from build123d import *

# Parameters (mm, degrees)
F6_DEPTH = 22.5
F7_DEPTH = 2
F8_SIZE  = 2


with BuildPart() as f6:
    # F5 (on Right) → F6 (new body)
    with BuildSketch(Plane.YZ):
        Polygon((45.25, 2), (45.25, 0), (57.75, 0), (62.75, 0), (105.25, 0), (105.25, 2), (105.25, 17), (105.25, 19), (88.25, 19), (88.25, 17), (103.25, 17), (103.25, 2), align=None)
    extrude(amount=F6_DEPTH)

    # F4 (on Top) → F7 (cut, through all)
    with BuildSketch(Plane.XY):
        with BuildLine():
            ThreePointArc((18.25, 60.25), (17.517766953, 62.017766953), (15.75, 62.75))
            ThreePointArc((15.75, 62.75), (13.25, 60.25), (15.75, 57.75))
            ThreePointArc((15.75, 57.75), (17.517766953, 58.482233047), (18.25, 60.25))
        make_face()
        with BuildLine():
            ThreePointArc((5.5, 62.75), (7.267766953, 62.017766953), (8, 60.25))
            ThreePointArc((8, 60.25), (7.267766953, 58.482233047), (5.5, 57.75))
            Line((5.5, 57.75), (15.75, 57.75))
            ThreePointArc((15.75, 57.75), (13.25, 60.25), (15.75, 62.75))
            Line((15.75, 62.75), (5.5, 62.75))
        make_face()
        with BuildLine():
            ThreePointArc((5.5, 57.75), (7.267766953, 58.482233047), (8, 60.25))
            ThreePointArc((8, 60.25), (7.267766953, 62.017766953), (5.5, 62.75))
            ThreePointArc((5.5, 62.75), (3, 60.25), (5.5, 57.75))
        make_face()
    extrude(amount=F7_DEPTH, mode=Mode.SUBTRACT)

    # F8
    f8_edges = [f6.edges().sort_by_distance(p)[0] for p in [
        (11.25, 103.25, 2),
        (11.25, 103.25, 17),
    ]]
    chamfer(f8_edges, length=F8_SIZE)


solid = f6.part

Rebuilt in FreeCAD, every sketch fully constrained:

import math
import FreeCAD as App
import Part
import Sketcher
from FreeCAD import Vector


def edges_at(feature, points):
    """Names of the edges that pass closest to the given points."""
    edges = feature.Shape.Edges
    near = lambda p: min(range(len(edges)), key=lambda i: edges[i].distToShape(Part.Vertex(*p))[0])
    return sorted({f"Edge{near(p) + 1}" for p in points})

doc = App.newDocument("Part")
params = doc.addObject("Spreadsheet::Sheet", "Params")
for row, (alias, value) in enumerate([
    ("sketch1_width", "60 mm"),
    ("sketch1_width2", "17 mm"),
    ("sketch1_width3", "15 mm"),
    ("sketch1_height", "2 mm"),
    ("pad1_length", "22.5 mm"),
    ("sketch2_radius", "2.5 mm"),
    ("sketch2_width", "10.25 mm"),
    ("chamfer_size", "2 mm"),
], start=1):
    params.set(f"A{row}", alias)
    params.set(f"B{row}", "=" + value)
    params.setAlias(f"B{row}", alias)

body = doc.addObject("PartDesign::Body", "Body")

# Sketch on YZ plane
sketch1 = body.newObject("Sketcher::SketchObject", "Sketch")
sketch1.AttachmentSupport = (doc.getObject("YZ_Plane"), [""])
sketch1.MapMode = "FlatFace"
sketch1.addGeometry([
    Part.LineSegment(Vector(45.2, 2, 0), Vector(45.2, 0, 0)),  # 0
    Part.LineSegment(Vector(45.2, 0, 0), Vector(105.2, 0, 0)),  # 1
    Part.LineSegment(Vector(105.2, 0, 0), Vector(105.2, 19, 0)),  # 2
    Part.LineSegment(Vector(105.2, 19, 0), Vector(88.2, 19, 0)),  # 3
    Part.LineSegment(Vector(88.2, 19, 0), Vector(88.2, 17, 0)),  # 4
    Part.LineSegment(Vector(88.2, 17, 0), Vector(103.2, 17, 0)),  # 5
    Part.LineSegment(Vector(103.2, 17, 0), Vector(103.2, 2, 0)),  # 6
    Part.LineSegment(Vector(103.2, 2, 0), Vector(45.2, 2, 0)),  # 7
], False)
sketch1.addConstraint([
    Sketcher.Constraint("Coincident", 0, 2, 1, 1),
    Sketcher.Constraint("Coincident", 1, 2, 2, 1),
    Sketcher.Constraint("Coincident", 2, 2, 3, 1),
    Sketcher.Constraint("Coincident", 3, 2, 4, 1),
    Sketcher.Constraint("Coincident", 4, 2, 5, 1),
    Sketcher.Constraint("Coincident", 5, 2, 6, 1),
    Sketcher.Constraint("Coincident", 6, 2, 7, 1),
    Sketcher.Constraint("Coincident", 7, 2, 0, 1),
    Sketcher.Constraint("Vertical", 0),
    Sketcher.Constraint("Horizontal", 1),
    Sketcher.Constraint("Vertical", 2),
    Sketcher.Constraint("Horizontal", 3),
    Sketcher.Constraint("Vertical", 4),
    Sketcher.Constraint("Horizontal", 5),
    Sketcher.Constraint("Vertical", 6),
    Sketcher.Constraint("Horizontal", 7),
    Sketcher.Constraint("PointOnObject", 0, 2, -1),
    Sketcher.Constraint("Equal", 0, 4),
    Sketcher.Constraint("Equal", 5, 6),
    Sketcher.Constraint("DistanceX", 1, 1, 1, 2, 60.0),
    Sketcher.Constraint("DistanceX", 3, 2, 3, 1, 17.0),
    Sketcher.Constraint("DistanceX", 5, 1, 5, 2, 15.0),
    Sketcher.Constraint("DistanceY", 0, 2, 0, 1, 2.0),
    Sketcher.Constraint("DistanceX", -1, 1, 0, 2, 45.25),
])
sketch1.setExpression("Constraints[19]", "Params.sketch1_width")
sketch1.setExpression("Constraints[20]", "Params.sketch1_width2")
sketch1.setExpression("Constraints[21]", "Params.sketch1_width3")
sketch1.setExpression("Constraints[22]", "Params.sketch1_height")
pad1 = body.newObject("PartDesign::Pad", "Pad")
pad1.Profile = sketch1
pad1.setExpression("Length", "Params.pad1_length")

# Sketch on XY plane
sketch2 = body.newObject("Sketcher::SketchObject", "Sketch001")
sketch2.AttachmentSupport = (doc.getObject("XY_Plane"), [""])
sketch2.MapMode = "FlatFace"
sketch2.addGeometry([
    Part.ArcOfCircle(Part.Circle(Vector(15.8, 60.2, 0), Vector(0, 0, 1), 2.5), math.radians(0), math.radians(90)),  # 0
    Part.LineSegment(Vector(15.8, 62.8, 0), Vector(5.5, 62.8, 0)),  # 1
    Part.ArcOfCircle(Part.Circle(Vector(5.5, 60.2, 0), Vector(0, 0, 1), 2.5), math.radians(90), math.radians(270)),  # 2
    Part.LineSegment(Vector(5.5, 57.8, 0), Vector(15.8, 57.8, 0)),  # 3
    Part.ArcOfCircle(Part.Circle(Vector(15.8, 60.2, 0), Vector(0, 0, 1), 2.5), math.radians(-90), math.radians(0)),  # 4
], False)
sketch2.addConstraint([
    Sketcher.Constraint("Tangent", 0, 2, 1, 1),
    Sketcher.Constraint("Tangent", 1, 2, 2, 1),
    Sketcher.Constraint("Tangent", 2, 2, 3, 1),
    Sketcher.Constraint("Tangent", 3, 2, 4, 1),
    Sketcher.Constraint("Tangent", 4, 2, 0, 1),
    Sketcher.Constraint("Horizontal", 1),
    Sketcher.Constraint("Horizontal", 3),
    Sketcher.Constraint("Equal", 0, 2),
    Sketcher.Constraint("Horizontal", 2, 3, 4, 2),
    Sketcher.Constraint("Radius", 0, 2.5),
    Sketcher.Constraint("DistanceX", 1, 2, 1, 1, 10.25),
    Sketcher.Constraint("DistanceX", -1, 1, 2, 3, 5.5),
    Sketcher.Constraint("DistanceY", -1, 1, 0, 3, 60.25),
])
sketch2.setExpression("Constraints[9]", "Params.sketch2_radius")
sketch2.setExpression("Constraints[10]", "Params.sketch2_width")
pocket1 = body.newObject("PartDesign::Pocket", "Pocket")
pocket1.Profile = sketch2
pocket1.Type = "ThroughAll"
pocket1.Reversed = True
doc.recompute()

chamfer = body.newObject("PartDesign::Chamfer", "Chamfer")
chamfer.Base = (pocket1, edges_at(pocket1, [(11.25, 103.25, 2), (11.25, 103.25, 17)]))
chamfer.setExpression("Size", "Params.chamfer_size")

doc.recompute()
